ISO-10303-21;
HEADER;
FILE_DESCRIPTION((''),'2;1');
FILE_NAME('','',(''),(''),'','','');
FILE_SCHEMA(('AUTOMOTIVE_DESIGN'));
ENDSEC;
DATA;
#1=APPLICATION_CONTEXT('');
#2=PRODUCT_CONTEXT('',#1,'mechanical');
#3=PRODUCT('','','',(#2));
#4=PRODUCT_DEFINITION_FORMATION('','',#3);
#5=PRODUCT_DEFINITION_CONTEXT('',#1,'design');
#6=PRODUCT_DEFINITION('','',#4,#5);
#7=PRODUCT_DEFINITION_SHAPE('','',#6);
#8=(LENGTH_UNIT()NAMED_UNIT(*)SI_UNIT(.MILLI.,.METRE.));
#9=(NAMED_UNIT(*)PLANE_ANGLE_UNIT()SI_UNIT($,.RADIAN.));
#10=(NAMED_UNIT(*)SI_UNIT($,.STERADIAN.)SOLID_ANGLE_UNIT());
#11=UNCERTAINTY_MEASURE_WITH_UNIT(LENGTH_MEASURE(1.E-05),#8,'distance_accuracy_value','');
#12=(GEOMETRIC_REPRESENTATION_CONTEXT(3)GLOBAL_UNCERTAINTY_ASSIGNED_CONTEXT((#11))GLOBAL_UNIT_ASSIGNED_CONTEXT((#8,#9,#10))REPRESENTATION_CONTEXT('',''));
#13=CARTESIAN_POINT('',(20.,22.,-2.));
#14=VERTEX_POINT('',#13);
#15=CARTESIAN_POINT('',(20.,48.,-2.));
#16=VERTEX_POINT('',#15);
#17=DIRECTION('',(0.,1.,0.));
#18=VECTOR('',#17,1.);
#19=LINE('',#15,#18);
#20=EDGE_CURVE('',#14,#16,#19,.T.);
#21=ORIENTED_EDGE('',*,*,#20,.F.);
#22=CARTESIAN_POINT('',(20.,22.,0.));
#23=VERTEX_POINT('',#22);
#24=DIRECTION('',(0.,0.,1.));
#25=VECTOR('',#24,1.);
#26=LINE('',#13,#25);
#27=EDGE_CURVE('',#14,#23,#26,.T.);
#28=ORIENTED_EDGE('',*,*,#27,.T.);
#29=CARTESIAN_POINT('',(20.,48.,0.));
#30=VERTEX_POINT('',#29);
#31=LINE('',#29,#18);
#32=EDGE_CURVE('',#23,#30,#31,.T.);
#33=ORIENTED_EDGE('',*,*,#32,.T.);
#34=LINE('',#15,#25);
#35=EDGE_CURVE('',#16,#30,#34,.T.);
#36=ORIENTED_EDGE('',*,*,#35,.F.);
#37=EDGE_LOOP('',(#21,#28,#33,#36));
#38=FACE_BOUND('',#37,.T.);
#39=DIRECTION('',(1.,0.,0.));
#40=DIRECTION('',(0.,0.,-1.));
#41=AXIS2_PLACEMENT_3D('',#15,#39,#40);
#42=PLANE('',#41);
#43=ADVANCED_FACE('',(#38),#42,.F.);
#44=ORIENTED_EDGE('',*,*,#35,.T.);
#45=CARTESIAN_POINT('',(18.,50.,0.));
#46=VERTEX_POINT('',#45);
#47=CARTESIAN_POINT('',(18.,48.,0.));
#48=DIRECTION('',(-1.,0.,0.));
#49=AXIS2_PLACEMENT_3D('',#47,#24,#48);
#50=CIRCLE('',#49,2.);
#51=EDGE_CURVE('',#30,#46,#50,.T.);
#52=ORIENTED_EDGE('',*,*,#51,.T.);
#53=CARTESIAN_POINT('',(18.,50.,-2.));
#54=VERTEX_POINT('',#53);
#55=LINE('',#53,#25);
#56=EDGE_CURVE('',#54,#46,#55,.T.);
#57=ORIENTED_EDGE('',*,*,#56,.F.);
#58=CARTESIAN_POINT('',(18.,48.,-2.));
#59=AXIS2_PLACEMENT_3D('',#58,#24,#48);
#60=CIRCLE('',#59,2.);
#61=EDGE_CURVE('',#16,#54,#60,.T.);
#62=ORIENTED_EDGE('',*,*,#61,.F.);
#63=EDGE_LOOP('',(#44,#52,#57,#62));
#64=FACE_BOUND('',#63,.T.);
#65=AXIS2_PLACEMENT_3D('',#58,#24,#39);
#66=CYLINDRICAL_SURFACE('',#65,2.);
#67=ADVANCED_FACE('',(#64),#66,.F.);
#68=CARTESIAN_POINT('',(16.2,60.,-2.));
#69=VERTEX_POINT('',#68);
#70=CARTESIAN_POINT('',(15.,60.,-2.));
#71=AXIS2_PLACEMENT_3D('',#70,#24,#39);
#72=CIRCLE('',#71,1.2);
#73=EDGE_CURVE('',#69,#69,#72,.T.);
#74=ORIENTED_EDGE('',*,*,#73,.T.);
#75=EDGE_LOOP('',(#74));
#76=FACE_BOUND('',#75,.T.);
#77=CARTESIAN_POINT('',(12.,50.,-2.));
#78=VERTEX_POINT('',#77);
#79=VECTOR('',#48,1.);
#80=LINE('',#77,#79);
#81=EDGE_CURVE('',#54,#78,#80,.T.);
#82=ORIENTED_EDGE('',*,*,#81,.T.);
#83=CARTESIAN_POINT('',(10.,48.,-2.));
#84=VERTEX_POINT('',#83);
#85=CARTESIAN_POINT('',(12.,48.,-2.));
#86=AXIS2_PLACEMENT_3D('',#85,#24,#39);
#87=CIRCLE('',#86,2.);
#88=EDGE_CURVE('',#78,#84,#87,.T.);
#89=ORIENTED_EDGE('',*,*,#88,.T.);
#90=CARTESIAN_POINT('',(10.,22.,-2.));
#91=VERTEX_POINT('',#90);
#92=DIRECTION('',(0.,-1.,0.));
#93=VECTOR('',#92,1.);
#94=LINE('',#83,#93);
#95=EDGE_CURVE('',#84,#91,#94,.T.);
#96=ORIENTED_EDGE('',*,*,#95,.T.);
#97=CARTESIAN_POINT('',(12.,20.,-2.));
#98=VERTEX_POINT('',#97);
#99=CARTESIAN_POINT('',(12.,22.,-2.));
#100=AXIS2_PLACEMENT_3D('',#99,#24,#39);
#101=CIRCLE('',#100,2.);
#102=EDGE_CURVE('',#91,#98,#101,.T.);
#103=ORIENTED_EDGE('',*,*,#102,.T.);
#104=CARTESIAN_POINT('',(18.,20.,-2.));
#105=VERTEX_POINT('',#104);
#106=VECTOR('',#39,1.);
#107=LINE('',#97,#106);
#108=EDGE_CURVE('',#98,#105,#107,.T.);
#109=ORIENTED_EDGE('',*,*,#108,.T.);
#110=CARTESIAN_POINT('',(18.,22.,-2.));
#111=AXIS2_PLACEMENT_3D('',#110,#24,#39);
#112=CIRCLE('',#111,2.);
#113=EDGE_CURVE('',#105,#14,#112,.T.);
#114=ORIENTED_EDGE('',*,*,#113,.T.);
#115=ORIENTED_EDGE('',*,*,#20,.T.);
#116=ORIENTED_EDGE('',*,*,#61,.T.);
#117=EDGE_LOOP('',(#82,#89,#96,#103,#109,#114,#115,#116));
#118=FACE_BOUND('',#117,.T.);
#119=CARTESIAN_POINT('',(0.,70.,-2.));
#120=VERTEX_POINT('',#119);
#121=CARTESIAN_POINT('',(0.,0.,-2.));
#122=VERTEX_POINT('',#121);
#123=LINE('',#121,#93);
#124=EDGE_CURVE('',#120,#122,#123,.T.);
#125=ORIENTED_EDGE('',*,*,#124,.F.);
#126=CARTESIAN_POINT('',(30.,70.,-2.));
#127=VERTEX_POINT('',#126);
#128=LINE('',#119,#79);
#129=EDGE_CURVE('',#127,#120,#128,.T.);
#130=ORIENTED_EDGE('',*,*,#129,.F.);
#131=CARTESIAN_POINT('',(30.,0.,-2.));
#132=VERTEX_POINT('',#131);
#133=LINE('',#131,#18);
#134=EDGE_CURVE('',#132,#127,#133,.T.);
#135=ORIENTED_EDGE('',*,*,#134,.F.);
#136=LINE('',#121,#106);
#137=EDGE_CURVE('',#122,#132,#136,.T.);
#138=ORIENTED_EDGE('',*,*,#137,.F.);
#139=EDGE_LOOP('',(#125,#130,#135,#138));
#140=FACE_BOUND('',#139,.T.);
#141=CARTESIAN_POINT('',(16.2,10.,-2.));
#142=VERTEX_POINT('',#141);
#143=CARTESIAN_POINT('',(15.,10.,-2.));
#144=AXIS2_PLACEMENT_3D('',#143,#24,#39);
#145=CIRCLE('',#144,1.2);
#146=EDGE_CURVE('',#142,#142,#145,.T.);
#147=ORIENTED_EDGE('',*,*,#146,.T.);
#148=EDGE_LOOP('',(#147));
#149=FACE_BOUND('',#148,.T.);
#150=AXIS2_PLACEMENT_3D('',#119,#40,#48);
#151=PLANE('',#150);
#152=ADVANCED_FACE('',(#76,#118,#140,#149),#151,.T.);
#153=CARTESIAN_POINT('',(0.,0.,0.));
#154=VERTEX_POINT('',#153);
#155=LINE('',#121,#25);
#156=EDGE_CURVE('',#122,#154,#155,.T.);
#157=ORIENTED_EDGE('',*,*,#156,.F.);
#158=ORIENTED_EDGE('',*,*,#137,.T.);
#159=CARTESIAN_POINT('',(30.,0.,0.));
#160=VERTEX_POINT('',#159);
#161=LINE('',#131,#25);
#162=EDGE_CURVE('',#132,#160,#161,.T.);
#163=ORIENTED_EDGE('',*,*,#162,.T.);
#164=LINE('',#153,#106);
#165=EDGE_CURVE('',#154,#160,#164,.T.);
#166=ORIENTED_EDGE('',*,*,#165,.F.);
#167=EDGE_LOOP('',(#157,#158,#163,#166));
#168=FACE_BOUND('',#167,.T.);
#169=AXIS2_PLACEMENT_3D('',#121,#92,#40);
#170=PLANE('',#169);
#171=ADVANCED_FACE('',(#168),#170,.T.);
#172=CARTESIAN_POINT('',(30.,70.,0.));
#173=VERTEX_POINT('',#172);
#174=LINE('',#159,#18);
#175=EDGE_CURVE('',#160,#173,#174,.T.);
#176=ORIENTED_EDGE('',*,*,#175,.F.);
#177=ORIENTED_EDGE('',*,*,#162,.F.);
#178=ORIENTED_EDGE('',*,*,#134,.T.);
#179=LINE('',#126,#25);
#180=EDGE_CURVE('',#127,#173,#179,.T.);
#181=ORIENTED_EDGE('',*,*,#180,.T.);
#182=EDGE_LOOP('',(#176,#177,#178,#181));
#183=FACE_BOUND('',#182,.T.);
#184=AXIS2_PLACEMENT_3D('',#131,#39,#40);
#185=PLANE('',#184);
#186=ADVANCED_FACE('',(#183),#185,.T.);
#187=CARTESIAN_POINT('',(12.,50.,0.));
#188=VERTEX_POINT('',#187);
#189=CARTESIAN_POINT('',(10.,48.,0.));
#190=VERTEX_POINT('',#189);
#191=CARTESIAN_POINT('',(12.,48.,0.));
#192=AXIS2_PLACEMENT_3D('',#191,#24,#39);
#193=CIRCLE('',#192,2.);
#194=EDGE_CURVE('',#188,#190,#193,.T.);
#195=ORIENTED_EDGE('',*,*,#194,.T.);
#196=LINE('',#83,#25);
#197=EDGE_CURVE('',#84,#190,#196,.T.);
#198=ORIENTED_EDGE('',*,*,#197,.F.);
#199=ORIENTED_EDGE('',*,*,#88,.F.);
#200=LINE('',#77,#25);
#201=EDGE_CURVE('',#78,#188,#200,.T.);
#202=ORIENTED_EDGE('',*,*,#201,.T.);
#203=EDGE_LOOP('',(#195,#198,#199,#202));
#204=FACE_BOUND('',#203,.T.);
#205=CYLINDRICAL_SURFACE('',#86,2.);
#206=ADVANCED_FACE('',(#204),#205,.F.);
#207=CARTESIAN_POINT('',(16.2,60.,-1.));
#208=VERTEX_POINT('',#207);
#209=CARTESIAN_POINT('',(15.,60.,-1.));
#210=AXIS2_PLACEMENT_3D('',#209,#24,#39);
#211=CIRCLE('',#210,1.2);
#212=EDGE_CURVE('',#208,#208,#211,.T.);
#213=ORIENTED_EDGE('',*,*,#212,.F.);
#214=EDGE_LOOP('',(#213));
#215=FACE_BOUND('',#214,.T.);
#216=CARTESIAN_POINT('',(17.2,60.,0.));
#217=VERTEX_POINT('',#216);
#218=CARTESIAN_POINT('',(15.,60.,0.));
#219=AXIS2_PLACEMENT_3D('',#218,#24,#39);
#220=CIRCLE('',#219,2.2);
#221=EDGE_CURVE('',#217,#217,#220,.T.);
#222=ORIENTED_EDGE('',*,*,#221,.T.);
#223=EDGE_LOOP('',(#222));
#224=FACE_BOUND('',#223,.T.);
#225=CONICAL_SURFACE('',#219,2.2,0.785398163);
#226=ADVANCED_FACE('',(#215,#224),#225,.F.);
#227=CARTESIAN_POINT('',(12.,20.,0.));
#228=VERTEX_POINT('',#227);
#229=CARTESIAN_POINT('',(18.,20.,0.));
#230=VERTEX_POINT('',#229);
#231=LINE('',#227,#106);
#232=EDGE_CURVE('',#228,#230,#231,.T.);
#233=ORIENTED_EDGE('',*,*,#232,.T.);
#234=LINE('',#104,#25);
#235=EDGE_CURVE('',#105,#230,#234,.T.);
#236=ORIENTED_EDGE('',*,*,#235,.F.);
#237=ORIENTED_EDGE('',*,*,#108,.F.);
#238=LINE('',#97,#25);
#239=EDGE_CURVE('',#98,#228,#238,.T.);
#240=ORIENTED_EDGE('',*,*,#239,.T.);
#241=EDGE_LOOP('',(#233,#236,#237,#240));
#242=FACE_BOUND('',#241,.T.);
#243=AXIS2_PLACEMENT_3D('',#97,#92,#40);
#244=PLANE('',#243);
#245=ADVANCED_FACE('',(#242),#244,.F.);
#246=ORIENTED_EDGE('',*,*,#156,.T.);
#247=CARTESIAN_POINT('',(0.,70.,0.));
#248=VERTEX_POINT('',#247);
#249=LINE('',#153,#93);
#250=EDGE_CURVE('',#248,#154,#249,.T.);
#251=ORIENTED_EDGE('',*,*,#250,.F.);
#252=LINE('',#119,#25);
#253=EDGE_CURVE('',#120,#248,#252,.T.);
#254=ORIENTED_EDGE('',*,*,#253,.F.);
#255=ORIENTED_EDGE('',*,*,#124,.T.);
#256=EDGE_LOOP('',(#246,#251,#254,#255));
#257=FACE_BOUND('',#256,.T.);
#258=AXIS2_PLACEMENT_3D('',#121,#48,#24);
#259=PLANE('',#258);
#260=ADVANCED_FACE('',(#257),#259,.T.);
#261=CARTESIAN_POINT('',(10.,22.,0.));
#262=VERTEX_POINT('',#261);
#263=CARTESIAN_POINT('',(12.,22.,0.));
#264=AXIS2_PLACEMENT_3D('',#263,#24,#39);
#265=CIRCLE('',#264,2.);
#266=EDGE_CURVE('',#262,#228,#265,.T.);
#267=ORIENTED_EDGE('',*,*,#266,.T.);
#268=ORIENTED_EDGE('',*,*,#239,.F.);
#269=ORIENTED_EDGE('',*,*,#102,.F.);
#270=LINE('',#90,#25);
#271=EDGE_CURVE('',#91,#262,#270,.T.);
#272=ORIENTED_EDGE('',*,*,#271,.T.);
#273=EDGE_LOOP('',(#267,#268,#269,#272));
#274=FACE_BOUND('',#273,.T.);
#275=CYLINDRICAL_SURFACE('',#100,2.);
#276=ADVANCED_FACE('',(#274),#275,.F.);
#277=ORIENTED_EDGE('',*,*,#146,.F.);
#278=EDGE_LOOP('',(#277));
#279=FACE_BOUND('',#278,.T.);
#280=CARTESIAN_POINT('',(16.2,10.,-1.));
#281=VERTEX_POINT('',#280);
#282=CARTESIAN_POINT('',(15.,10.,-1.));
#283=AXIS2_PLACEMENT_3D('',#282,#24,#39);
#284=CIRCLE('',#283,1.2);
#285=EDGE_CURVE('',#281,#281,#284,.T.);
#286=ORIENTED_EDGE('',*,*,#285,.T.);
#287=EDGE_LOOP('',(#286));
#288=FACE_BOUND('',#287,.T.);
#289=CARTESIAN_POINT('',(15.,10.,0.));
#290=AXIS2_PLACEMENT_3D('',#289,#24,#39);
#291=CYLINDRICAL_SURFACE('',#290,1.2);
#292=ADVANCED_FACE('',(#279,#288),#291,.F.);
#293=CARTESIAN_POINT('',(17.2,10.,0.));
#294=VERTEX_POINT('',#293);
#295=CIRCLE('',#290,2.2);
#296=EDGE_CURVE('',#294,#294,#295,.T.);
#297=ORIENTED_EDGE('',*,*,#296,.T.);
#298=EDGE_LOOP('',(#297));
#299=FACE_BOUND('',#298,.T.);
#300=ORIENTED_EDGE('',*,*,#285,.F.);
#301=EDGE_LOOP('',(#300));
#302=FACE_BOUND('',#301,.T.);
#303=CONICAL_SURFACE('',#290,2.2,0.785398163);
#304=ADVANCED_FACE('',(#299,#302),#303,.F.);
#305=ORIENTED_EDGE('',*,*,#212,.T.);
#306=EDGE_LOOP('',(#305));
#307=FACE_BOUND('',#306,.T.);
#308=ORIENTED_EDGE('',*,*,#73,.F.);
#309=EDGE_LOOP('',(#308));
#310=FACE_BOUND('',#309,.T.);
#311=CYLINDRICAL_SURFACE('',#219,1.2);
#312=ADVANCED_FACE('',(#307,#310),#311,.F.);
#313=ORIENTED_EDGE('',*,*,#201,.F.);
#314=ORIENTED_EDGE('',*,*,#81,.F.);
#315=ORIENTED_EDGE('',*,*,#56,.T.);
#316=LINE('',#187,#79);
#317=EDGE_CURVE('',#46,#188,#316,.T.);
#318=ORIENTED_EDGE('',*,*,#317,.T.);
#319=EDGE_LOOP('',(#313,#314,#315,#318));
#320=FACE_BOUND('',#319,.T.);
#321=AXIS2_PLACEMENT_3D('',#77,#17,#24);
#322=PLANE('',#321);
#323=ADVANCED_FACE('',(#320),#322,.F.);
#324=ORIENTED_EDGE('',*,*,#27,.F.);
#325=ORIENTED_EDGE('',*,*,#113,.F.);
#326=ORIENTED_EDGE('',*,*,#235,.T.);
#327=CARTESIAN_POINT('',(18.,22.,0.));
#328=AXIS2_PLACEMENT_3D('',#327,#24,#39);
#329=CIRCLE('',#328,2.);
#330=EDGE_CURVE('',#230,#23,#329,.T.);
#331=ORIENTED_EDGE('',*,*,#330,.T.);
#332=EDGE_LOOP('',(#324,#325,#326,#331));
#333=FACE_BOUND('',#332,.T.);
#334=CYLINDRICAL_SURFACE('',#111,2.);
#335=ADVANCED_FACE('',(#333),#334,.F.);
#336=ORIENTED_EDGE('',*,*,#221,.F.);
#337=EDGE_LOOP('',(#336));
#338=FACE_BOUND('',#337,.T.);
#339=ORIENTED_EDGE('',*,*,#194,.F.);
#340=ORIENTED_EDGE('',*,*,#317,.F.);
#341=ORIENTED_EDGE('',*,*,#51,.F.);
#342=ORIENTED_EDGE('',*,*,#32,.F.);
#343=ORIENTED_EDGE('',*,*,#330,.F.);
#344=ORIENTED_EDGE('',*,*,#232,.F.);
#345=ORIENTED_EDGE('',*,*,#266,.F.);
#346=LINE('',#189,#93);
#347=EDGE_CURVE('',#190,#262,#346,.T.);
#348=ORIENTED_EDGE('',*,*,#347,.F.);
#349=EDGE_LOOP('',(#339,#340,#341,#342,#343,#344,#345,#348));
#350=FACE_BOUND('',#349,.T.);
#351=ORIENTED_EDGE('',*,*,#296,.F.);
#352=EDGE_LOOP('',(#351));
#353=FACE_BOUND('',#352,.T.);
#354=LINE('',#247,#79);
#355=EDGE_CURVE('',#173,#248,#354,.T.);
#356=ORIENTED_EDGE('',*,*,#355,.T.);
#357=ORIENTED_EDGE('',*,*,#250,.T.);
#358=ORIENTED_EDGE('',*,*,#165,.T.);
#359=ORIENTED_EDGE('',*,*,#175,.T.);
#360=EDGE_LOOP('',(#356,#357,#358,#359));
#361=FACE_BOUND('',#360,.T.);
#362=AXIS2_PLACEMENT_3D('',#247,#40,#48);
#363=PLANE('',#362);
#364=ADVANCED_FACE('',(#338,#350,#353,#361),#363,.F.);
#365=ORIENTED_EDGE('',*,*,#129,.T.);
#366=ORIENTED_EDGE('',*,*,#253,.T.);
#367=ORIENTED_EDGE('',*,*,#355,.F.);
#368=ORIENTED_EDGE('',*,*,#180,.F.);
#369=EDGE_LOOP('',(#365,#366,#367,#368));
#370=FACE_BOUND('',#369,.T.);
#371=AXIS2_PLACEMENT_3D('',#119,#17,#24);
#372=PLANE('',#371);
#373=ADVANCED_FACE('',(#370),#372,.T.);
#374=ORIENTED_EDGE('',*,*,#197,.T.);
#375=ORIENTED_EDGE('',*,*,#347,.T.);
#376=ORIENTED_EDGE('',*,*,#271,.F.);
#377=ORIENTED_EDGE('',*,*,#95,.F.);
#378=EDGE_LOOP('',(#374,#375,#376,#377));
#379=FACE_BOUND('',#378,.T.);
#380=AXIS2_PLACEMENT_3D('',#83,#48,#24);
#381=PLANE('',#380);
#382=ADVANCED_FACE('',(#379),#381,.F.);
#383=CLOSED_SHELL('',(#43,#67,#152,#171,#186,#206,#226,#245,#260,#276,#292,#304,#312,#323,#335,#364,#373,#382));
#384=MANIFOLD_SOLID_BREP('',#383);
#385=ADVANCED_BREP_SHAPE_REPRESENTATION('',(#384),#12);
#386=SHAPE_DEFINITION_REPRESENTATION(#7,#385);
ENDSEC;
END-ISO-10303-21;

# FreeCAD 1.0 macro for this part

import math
import FreeCAD as App
import Part
import Sketcher

V = App.Vector
Q = App.Units.Quantity

doc = App.newDocument("Part")
body = doc.addObject("PartDesign::Body", "Body")

# Sketch on XY plane
sketch1 = body.newObject("Sketcher::SketchObject", "Sketch")
sketch1.AttachmentSupport = (doc.getObject("XY_Plane"), [""])
sketch1.MapMode = "FlatFace"
sketch1.addGeometry([
    Part.LineSegment(V(0, 70, 0), V(0, 0, 0)),  # 0
    Part.LineSegment(V(0, 0, 0), V(30, 0, 0)),  # 1
    Part.LineSegment(V(30, 0, 0), V(30, 70, 0)),  # 2
    Part.LineSegment(V(30, 70, 0), V(0, 70, 0)),  # 3
    Part.ArcOfCircle(Part.Circle(V(12, 48, 0), V(0, 0, 1), 2), math.radians(90), math.radians(180)),  # 4
    Part.LineSegment(V(12, 50, 0), V(18, 50, 0)),  # 5
    Part.ArcOfCircle(Part.Circle(V(18, 48, 0), V(0, 0, 1), 2), math.radians(0), math.radians(90)),  # 6
    Part.LineSegment(V(20, 48, 0), V(20, 22, 0)),  # 7
    Part.ArcOfCircle(Part.Circle(V(18, 22, 0), V(0, 0, 1), 2), math.radians(-90), math.radians(0)),  # 8
    Part.LineSegment(V(18, 20, 0), V(12, 20, 0)),  # 9
    Part.ArcOfCircle(Part.Circle(V(12, 22, 0), V(0, 0, 1), 2), math.radians(-180), math.radians(-90)),  # 10
    Part.LineSegment(V(10, 22, 0), V(10, 48, 0)),  # 11
], False)
sketch1.addConstraint([
    Sketcher.Constraint("Coincident", 0, 2, 1, 1),
    Sketcher.Constraint("Coincident", 1, 2, 2, 1),
    Sketcher.Constraint("Coincident", 2, 2, 3, 1),
    Sketcher.Constraint("Coincident", 3, 2, 0, 1),
    Sketcher.Constraint("Tangent", 4, 1, 5, 1),
    Sketcher.Constraint("Tangent", 5, 2, 6, 2),
    Sketcher.Constraint("Tangent", 6, 1, 7, 1),
    Sketcher.Constraint("Tangent", 7, 2, 8, 2),
    Sketcher.Constraint("Tangent", 8, 1, 9, 1),
    Sketcher.Constraint("Tangent", 9, 2, 10, 2),
    Sketcher.Constraint("Tangent", 10, 1, 11, 1),
    Sketcher.Constraint("Tangent", 11, 2, 4, 2),
    Sketcher.Constraint("Vertical", 0),
    Sketcher.Constraint("Horizontal", 1),
    Sketcher.Constraint("Vertical", 2),
    Sketcher.Constraint("Horizontal", 3),
    Sketcher.Constraint("Horizontal", 5),
    Sketcher.Constraint("Vertical", 7),
    Sketcher.Constraint("Horizontal", 9),
    Sketcher.Constraint("Vertical", 11),
    Sketcher.Constraint("Coincident", 0, 2, -1, 1),
    Sketcher.Constraint("Equal", 4, 6),
    Sketcher.Constraint("Equal", 6, 8),
    Sketcher.Constraint("Equal", 8, 10),
    Sketcher.Constraint("Radius", 4, Q("2 mm")),
    Sketcher.Constraint("DistanceX", 1, 1, 1, 2, Q("30 mm")),
    Sketcher.Constraint("DistanceX", 5, 1, 5, 2, Q("6 mm")),
    Sketcher.Constraint("DistanceY", 0, 2, 0, 1, Q("70 mm")),
    Sketcher.Constraint("DistanceY", 7, 2, 7, 1, Q("26 mm")),
    Sketcher.Constraint("DistanceX", -1, 1, 4, 3, Q("12 mm")),
    Sketcher.Constraint("DistanceY", -1, 1, 4, 3, Q("48 mm")),
])
pad1 = body.newObject("PartDesign::Pad", "Pad")
pad1.Profile = sketch1
pad1.Length = 2
pad1.Reversed = True

# Sketch on YZ plane
sketch2 = body.newObject("Sketcher::SketchObject", "Sketch001")
sketch2.AttachmentSupport = (doc.getObject("YZ_Plane"), [""])
sketch2.MapMode = "FlatFace"
sketch2.AttachmentOffset = App.Placement(V(0, 0, 15), App.Rotation())
sketch2.addGeometry([
    Part.LineSegment(V(60, -2, 0), V(60, 0, 0)),  # 0
    Part.LineSegment(V(60, 0, 0), V(57.8, 0, 0)),  # 1
    Part.LineSegment(V(57.8, 0, 0), V(58.8, -1, 0)),  # 2
    Part.LineSegment(V(58.8, -1, 0), V(58.8, -2, 0)),  # 3
    Part.LineSegment(V(58.8, -2, 0), V(60, -2, 0)),  # 4
], False)
sketch2.addGeometry(Part.LineSegment(V(60, 0, 0), V(60, -2, 0)), True)  # axis
sketch2.addConstraint([
    Sketcher.Constraint("Coincident", 0, 2, 1, 1),
    Sketcher.Constraint("Coincident", 1, 2, 2, 1),
    Sketcher.Constraint("Coincident", 2, 2, 3, 1),
    Sketcher.Constraint("Coincident", 3, 2, 4, 1),
    Sketcher.Constraint("Coincident", 4, 2, 0, 1),
    Sketcher.Constraint("Vertical", 0),
    Sketcher.Constraint("Horizontal", 1),
    Sketcher.Constraint("Vertical", 3),
    Sketcher.Constraint("Horizontal", 4),
    Sketcher.Constraint("Vertical", 5),
    Sketcher.Constraint("Coincident", 5, 1, 0, 2),
    Sketcher.Constraint("PointOnObject", 0, 2, -1),
    Sketcher.Constraint("Horizontal", 3, 2, 5, 2),
    Sketcher.Constraint("DistanceY", 0, 1, 0, 2, Q("2 mm")),
    Sketcher.Constraint("DistanceY", 3, 2, 3, 1, Q("1 mm")),
    Sketcher.Constraint("Angle", 2, Q("-45 deg")),
    Sketcher.Constraint("DistanceX", 1, 2, 1, 1, Q("2.2 mm")),
    Sketcher.Constraint("DistanceX", -1, 1, 0, 2, Q("60 mm")),
])
groove = body.newObject("PartDesign::Groove", "Groove")
groove.Profile = sketch2
groove.ReferenceAxis = (sketch2, ["Axis0"])
groove.Angle = 360
doc.recompute()

linearpattern = body.newObject("PartDesign::LinearPattern", "LinearPattern")
linearpattern.Originals = [groove]
linearpattern.Direction = (doc.getObject("Y_Axis"), [""])
linearpattern.Mode = "offset"
linearpattern.Offset = 50
linearpattern.Occurrences = 2
linearpattern.Reversed = True
body.Tip = linearpattern

doc.recompute()
